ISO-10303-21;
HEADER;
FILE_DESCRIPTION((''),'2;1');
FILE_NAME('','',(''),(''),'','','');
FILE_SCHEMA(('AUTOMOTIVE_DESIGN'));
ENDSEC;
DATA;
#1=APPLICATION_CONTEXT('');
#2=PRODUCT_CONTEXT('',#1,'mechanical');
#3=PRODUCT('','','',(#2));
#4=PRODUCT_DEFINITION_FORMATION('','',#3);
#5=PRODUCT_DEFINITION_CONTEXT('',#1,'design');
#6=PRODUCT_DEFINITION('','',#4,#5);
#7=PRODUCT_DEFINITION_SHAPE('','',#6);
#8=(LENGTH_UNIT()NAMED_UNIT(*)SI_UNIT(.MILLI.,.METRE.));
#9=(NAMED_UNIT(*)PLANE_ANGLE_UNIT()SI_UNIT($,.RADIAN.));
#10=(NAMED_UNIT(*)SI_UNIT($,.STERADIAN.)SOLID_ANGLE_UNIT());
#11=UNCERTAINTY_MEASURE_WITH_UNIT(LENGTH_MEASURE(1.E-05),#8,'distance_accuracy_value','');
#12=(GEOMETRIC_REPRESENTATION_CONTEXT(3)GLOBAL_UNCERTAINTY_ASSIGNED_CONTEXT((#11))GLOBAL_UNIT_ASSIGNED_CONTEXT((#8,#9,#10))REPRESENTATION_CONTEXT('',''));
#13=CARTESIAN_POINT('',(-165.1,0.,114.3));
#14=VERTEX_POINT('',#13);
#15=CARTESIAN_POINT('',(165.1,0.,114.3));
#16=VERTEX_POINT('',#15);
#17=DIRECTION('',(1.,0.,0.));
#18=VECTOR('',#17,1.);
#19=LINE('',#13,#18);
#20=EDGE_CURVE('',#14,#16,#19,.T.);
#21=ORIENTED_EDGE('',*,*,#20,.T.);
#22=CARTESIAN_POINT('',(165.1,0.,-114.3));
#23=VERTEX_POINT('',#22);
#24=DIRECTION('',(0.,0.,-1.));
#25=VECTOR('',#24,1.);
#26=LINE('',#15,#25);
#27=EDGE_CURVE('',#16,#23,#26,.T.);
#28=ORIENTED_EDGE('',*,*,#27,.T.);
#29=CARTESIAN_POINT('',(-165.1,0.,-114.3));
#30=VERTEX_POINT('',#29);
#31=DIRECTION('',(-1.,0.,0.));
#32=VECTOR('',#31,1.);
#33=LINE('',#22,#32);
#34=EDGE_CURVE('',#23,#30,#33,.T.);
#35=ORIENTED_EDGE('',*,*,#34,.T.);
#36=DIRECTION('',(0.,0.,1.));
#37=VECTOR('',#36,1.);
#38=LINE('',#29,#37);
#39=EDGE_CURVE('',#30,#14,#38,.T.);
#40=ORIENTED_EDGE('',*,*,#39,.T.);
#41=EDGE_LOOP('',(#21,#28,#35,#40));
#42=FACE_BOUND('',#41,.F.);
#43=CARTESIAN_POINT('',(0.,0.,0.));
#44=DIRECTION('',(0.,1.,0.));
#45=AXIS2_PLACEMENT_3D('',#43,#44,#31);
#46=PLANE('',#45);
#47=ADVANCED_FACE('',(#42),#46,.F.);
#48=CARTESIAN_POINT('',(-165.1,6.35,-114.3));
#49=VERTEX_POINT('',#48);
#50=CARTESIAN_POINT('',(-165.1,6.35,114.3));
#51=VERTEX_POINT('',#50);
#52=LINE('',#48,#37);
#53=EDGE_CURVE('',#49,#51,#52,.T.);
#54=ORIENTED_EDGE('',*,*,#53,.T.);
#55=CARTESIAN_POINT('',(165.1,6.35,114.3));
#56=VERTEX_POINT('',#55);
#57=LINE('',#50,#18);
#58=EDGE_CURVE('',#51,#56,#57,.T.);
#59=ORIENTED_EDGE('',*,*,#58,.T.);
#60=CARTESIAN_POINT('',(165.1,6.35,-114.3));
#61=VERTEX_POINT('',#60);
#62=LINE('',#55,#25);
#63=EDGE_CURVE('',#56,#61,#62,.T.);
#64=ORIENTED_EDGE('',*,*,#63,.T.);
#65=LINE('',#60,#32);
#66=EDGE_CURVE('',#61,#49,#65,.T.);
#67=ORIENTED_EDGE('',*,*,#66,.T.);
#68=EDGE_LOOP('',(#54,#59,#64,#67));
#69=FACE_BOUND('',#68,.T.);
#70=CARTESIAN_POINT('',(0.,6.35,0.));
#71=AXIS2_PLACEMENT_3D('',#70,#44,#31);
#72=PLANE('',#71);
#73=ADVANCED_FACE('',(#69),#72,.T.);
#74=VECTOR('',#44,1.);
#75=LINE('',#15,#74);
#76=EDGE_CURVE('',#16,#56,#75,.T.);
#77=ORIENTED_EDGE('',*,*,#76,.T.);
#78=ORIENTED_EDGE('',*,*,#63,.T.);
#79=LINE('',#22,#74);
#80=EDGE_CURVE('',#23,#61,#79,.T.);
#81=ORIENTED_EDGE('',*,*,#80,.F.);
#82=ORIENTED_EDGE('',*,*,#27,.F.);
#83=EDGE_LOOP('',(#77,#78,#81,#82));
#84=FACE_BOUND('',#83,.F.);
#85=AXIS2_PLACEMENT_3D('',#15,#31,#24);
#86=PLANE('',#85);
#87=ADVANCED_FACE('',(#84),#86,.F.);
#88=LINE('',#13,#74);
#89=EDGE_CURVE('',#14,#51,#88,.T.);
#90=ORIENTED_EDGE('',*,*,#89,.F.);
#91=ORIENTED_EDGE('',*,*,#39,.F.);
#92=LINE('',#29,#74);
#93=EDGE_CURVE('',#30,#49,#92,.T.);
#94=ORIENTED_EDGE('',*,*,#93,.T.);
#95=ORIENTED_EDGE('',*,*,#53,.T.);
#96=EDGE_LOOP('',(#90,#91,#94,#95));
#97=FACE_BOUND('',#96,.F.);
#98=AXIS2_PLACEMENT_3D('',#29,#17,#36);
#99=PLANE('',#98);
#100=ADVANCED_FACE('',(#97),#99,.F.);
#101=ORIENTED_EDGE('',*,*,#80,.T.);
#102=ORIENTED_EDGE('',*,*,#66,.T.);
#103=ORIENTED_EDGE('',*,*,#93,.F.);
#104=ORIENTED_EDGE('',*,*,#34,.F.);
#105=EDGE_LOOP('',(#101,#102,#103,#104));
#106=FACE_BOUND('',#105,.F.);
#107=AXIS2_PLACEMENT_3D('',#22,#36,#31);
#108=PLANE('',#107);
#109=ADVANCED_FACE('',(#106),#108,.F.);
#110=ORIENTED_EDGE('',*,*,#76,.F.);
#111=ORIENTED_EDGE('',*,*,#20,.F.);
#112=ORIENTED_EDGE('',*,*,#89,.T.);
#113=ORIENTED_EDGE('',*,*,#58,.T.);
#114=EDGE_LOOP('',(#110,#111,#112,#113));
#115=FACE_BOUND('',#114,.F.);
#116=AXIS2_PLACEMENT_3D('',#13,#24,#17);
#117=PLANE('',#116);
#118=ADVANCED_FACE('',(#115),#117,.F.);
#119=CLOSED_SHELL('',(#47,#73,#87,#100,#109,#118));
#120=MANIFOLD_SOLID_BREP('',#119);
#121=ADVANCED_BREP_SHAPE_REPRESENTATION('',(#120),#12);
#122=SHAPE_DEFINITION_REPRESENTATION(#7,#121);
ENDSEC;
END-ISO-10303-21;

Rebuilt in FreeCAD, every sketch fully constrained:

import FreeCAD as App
import Part
import Sketcher
from FreeCAD import Vector
Q = App.Units.Quantity

doc = App.newDocument("Part")
body = doc.addObject("PartDesign::Body", "Body")

# Sketch on XZ plane
sketch1 = body.newObject("Sketcher::SketchObject", "Sketch")
sketch1.AttachmentSupport = (doc.getObject("XZ_Plane"), [""])
sketch1.MapMode = "FlatFace"
sketch1.addGeometry(Part.LineSegment(Vector(-165, -114, 0), Vector(-165, 114, 0)), False)
sketch1.addGeometry(Part.LineSegment(Vector(-165, 114, 0), Vector(165, 114, 0)), False)
sketch1.addGeometry(Part.LineSegment(Vector(165, 114, 0), Vector(165, -114, 0)), False)
sketch1.addGeometry(Part.LineSegment(Vector(165, -114, 0), Vector(-165, -114, 0)), False)
sketch1.addConstraint(Sketcher.Constraint("Coincident", 0, 2, 1, 1))
sketch1.addConstraint(Sketcher.Constraint("Coincident", 1, 2, 2, 1))
sketch1.addConstraint(Sketcher.Constraint("Coincident", 2, 2, 3, 1))
sketch1.addConstraint(Sketcher.Constraint("Coincident", 3, 2, 0, 1))
sketch1.addConstraint(Sketcher.Constraint("Vertical", 0))
sketch1.addConstraint(Sketcher.Constraint("Horizontal", 1))
sketch1.addConstraint(Sketcher.Constraint("Vertical", 2))
sketch1.addConstraint(Sketcher.Constraint("Horizontal", 3))
sketch1.addConstraint(Sketcher.Constraint("Symmetric", 0, 2, 2, 2, -1, 1))
sketch1.addConstraint(Sketcher.Constraint("DistanceX", 1, 1, 1, 2, Q("13 in")))
sketch1.addConstraint(Sketcher.Constraint("DistanceY", 0, 1, 0, 2, Q("9 in")))
pad1 = body.newObject("PartDesign::Pad", "Pad")
pad1.Profile = sketch1
pad1.Length = Q("0.25 in")
pad1.Reversed = True

doc.recompute()
